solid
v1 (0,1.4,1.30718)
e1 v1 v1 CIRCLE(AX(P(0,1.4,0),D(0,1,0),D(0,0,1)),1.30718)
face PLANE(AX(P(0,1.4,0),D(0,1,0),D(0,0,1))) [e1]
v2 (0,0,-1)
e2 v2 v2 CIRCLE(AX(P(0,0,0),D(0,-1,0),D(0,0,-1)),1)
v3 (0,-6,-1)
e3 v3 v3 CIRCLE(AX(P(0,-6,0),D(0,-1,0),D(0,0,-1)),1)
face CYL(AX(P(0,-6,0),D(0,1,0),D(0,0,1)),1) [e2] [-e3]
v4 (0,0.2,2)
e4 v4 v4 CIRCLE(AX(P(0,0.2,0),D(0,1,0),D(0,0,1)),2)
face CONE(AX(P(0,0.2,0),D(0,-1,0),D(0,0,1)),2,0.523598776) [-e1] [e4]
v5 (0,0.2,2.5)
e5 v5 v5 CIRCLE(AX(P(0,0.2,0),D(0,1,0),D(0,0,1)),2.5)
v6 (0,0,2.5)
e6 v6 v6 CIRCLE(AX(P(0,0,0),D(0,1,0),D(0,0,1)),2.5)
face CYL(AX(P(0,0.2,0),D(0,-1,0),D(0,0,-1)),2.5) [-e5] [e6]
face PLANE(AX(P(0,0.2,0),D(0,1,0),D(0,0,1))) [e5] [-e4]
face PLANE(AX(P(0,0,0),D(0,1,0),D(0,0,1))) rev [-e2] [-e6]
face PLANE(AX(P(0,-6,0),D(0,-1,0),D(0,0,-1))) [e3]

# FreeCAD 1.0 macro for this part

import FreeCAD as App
import Part
import Sketcher
from FreeCAD import Vector

doc = App.newDocument("Part")
body = doc.addObject("PartDesign::Body", "Body")

# Sketch on XZ plane
sketch1 = doc.addObject("Sketcher::SketchObject", "Sketch")
body.addObject(sketch1)
sketch1.AttachmentSupport = (doc.XZ_Plane, [""])
sketch1.MapMode = "FlatFace"
sketch1.addGeometry(Part.Circle(Vector(0, 0, 0), Vector(0, 0, 1), 2.5), False)
sketch1.addConstraint(Sketcher.Constraint("Coincident", 0, 3, -1, 1))
sketch1.addConstraint(Sketcher.Constraint("Diameter", 0, 5.0))
pad1 = doc.addObject("PartDesign::Pad", "Pad")
body.addObject(pad1)
pad1.Profile = sketch1
pad1.Length = 0.2
pad1.Reversed = True

# Sketch on XZ plane
sketch2 = doc.addObject("Sketcher::SketchObject", "Sketch001")
body.addObject(sketch2)
sketch2.AttachmentSupport = (doc.XZ_Plane, [""])
sketch2.MapMode = "FlatFace"
sketch2.addGeometry(Part.Circle(Vector(0, 0, 0), Vector(0, 0, 1), 1), False)
sketch2.addConstraint(Sketcher.Constraint("Coincident", 0, 3, -1, 1))
sketch2.addConstraint(Sketcher.Constraint("Diameter", 0, 2.0))
pad2 = doc.addObject("PartDesign::Pad", "Pad001")
body.addObject(pad2)
pad2.Profile = sketch2
pad2.Length = 6

# Sketch on XZ plane
sketch3 = doc.addObject("Sketcher::SketchObject", "Sketch002")
body.addObject(sketch3)
sketch3.AttachmentSupport = (doc.XZ_Plane, [""])
sketch3.MapMode = "FlatFace"
sketch3.AttachmentOffset = App.Placement(Vector(0, 0, -0.2), App.Rotation())
sketch3.addGeometry(Part.Circle(Vector(0, 0, 0), Vector(0, 0, 1), 2), False)
sketch3.addConstraint(Sketcher.Constraint("Coincident", 0, 3, -1, 1))
sketch3.addConstraint(Sketcher.Constraint("Diameter", 0, 4.0))
pad3 = doc.addObject("PartDesign::Pad", "Pad002")
body.addObject(pad3)
pad3.Profile = sketch3
pad3.Length = 1.2
pad3.Reversed = True
pad3.TaperAngle = -30

doc.recompute()
